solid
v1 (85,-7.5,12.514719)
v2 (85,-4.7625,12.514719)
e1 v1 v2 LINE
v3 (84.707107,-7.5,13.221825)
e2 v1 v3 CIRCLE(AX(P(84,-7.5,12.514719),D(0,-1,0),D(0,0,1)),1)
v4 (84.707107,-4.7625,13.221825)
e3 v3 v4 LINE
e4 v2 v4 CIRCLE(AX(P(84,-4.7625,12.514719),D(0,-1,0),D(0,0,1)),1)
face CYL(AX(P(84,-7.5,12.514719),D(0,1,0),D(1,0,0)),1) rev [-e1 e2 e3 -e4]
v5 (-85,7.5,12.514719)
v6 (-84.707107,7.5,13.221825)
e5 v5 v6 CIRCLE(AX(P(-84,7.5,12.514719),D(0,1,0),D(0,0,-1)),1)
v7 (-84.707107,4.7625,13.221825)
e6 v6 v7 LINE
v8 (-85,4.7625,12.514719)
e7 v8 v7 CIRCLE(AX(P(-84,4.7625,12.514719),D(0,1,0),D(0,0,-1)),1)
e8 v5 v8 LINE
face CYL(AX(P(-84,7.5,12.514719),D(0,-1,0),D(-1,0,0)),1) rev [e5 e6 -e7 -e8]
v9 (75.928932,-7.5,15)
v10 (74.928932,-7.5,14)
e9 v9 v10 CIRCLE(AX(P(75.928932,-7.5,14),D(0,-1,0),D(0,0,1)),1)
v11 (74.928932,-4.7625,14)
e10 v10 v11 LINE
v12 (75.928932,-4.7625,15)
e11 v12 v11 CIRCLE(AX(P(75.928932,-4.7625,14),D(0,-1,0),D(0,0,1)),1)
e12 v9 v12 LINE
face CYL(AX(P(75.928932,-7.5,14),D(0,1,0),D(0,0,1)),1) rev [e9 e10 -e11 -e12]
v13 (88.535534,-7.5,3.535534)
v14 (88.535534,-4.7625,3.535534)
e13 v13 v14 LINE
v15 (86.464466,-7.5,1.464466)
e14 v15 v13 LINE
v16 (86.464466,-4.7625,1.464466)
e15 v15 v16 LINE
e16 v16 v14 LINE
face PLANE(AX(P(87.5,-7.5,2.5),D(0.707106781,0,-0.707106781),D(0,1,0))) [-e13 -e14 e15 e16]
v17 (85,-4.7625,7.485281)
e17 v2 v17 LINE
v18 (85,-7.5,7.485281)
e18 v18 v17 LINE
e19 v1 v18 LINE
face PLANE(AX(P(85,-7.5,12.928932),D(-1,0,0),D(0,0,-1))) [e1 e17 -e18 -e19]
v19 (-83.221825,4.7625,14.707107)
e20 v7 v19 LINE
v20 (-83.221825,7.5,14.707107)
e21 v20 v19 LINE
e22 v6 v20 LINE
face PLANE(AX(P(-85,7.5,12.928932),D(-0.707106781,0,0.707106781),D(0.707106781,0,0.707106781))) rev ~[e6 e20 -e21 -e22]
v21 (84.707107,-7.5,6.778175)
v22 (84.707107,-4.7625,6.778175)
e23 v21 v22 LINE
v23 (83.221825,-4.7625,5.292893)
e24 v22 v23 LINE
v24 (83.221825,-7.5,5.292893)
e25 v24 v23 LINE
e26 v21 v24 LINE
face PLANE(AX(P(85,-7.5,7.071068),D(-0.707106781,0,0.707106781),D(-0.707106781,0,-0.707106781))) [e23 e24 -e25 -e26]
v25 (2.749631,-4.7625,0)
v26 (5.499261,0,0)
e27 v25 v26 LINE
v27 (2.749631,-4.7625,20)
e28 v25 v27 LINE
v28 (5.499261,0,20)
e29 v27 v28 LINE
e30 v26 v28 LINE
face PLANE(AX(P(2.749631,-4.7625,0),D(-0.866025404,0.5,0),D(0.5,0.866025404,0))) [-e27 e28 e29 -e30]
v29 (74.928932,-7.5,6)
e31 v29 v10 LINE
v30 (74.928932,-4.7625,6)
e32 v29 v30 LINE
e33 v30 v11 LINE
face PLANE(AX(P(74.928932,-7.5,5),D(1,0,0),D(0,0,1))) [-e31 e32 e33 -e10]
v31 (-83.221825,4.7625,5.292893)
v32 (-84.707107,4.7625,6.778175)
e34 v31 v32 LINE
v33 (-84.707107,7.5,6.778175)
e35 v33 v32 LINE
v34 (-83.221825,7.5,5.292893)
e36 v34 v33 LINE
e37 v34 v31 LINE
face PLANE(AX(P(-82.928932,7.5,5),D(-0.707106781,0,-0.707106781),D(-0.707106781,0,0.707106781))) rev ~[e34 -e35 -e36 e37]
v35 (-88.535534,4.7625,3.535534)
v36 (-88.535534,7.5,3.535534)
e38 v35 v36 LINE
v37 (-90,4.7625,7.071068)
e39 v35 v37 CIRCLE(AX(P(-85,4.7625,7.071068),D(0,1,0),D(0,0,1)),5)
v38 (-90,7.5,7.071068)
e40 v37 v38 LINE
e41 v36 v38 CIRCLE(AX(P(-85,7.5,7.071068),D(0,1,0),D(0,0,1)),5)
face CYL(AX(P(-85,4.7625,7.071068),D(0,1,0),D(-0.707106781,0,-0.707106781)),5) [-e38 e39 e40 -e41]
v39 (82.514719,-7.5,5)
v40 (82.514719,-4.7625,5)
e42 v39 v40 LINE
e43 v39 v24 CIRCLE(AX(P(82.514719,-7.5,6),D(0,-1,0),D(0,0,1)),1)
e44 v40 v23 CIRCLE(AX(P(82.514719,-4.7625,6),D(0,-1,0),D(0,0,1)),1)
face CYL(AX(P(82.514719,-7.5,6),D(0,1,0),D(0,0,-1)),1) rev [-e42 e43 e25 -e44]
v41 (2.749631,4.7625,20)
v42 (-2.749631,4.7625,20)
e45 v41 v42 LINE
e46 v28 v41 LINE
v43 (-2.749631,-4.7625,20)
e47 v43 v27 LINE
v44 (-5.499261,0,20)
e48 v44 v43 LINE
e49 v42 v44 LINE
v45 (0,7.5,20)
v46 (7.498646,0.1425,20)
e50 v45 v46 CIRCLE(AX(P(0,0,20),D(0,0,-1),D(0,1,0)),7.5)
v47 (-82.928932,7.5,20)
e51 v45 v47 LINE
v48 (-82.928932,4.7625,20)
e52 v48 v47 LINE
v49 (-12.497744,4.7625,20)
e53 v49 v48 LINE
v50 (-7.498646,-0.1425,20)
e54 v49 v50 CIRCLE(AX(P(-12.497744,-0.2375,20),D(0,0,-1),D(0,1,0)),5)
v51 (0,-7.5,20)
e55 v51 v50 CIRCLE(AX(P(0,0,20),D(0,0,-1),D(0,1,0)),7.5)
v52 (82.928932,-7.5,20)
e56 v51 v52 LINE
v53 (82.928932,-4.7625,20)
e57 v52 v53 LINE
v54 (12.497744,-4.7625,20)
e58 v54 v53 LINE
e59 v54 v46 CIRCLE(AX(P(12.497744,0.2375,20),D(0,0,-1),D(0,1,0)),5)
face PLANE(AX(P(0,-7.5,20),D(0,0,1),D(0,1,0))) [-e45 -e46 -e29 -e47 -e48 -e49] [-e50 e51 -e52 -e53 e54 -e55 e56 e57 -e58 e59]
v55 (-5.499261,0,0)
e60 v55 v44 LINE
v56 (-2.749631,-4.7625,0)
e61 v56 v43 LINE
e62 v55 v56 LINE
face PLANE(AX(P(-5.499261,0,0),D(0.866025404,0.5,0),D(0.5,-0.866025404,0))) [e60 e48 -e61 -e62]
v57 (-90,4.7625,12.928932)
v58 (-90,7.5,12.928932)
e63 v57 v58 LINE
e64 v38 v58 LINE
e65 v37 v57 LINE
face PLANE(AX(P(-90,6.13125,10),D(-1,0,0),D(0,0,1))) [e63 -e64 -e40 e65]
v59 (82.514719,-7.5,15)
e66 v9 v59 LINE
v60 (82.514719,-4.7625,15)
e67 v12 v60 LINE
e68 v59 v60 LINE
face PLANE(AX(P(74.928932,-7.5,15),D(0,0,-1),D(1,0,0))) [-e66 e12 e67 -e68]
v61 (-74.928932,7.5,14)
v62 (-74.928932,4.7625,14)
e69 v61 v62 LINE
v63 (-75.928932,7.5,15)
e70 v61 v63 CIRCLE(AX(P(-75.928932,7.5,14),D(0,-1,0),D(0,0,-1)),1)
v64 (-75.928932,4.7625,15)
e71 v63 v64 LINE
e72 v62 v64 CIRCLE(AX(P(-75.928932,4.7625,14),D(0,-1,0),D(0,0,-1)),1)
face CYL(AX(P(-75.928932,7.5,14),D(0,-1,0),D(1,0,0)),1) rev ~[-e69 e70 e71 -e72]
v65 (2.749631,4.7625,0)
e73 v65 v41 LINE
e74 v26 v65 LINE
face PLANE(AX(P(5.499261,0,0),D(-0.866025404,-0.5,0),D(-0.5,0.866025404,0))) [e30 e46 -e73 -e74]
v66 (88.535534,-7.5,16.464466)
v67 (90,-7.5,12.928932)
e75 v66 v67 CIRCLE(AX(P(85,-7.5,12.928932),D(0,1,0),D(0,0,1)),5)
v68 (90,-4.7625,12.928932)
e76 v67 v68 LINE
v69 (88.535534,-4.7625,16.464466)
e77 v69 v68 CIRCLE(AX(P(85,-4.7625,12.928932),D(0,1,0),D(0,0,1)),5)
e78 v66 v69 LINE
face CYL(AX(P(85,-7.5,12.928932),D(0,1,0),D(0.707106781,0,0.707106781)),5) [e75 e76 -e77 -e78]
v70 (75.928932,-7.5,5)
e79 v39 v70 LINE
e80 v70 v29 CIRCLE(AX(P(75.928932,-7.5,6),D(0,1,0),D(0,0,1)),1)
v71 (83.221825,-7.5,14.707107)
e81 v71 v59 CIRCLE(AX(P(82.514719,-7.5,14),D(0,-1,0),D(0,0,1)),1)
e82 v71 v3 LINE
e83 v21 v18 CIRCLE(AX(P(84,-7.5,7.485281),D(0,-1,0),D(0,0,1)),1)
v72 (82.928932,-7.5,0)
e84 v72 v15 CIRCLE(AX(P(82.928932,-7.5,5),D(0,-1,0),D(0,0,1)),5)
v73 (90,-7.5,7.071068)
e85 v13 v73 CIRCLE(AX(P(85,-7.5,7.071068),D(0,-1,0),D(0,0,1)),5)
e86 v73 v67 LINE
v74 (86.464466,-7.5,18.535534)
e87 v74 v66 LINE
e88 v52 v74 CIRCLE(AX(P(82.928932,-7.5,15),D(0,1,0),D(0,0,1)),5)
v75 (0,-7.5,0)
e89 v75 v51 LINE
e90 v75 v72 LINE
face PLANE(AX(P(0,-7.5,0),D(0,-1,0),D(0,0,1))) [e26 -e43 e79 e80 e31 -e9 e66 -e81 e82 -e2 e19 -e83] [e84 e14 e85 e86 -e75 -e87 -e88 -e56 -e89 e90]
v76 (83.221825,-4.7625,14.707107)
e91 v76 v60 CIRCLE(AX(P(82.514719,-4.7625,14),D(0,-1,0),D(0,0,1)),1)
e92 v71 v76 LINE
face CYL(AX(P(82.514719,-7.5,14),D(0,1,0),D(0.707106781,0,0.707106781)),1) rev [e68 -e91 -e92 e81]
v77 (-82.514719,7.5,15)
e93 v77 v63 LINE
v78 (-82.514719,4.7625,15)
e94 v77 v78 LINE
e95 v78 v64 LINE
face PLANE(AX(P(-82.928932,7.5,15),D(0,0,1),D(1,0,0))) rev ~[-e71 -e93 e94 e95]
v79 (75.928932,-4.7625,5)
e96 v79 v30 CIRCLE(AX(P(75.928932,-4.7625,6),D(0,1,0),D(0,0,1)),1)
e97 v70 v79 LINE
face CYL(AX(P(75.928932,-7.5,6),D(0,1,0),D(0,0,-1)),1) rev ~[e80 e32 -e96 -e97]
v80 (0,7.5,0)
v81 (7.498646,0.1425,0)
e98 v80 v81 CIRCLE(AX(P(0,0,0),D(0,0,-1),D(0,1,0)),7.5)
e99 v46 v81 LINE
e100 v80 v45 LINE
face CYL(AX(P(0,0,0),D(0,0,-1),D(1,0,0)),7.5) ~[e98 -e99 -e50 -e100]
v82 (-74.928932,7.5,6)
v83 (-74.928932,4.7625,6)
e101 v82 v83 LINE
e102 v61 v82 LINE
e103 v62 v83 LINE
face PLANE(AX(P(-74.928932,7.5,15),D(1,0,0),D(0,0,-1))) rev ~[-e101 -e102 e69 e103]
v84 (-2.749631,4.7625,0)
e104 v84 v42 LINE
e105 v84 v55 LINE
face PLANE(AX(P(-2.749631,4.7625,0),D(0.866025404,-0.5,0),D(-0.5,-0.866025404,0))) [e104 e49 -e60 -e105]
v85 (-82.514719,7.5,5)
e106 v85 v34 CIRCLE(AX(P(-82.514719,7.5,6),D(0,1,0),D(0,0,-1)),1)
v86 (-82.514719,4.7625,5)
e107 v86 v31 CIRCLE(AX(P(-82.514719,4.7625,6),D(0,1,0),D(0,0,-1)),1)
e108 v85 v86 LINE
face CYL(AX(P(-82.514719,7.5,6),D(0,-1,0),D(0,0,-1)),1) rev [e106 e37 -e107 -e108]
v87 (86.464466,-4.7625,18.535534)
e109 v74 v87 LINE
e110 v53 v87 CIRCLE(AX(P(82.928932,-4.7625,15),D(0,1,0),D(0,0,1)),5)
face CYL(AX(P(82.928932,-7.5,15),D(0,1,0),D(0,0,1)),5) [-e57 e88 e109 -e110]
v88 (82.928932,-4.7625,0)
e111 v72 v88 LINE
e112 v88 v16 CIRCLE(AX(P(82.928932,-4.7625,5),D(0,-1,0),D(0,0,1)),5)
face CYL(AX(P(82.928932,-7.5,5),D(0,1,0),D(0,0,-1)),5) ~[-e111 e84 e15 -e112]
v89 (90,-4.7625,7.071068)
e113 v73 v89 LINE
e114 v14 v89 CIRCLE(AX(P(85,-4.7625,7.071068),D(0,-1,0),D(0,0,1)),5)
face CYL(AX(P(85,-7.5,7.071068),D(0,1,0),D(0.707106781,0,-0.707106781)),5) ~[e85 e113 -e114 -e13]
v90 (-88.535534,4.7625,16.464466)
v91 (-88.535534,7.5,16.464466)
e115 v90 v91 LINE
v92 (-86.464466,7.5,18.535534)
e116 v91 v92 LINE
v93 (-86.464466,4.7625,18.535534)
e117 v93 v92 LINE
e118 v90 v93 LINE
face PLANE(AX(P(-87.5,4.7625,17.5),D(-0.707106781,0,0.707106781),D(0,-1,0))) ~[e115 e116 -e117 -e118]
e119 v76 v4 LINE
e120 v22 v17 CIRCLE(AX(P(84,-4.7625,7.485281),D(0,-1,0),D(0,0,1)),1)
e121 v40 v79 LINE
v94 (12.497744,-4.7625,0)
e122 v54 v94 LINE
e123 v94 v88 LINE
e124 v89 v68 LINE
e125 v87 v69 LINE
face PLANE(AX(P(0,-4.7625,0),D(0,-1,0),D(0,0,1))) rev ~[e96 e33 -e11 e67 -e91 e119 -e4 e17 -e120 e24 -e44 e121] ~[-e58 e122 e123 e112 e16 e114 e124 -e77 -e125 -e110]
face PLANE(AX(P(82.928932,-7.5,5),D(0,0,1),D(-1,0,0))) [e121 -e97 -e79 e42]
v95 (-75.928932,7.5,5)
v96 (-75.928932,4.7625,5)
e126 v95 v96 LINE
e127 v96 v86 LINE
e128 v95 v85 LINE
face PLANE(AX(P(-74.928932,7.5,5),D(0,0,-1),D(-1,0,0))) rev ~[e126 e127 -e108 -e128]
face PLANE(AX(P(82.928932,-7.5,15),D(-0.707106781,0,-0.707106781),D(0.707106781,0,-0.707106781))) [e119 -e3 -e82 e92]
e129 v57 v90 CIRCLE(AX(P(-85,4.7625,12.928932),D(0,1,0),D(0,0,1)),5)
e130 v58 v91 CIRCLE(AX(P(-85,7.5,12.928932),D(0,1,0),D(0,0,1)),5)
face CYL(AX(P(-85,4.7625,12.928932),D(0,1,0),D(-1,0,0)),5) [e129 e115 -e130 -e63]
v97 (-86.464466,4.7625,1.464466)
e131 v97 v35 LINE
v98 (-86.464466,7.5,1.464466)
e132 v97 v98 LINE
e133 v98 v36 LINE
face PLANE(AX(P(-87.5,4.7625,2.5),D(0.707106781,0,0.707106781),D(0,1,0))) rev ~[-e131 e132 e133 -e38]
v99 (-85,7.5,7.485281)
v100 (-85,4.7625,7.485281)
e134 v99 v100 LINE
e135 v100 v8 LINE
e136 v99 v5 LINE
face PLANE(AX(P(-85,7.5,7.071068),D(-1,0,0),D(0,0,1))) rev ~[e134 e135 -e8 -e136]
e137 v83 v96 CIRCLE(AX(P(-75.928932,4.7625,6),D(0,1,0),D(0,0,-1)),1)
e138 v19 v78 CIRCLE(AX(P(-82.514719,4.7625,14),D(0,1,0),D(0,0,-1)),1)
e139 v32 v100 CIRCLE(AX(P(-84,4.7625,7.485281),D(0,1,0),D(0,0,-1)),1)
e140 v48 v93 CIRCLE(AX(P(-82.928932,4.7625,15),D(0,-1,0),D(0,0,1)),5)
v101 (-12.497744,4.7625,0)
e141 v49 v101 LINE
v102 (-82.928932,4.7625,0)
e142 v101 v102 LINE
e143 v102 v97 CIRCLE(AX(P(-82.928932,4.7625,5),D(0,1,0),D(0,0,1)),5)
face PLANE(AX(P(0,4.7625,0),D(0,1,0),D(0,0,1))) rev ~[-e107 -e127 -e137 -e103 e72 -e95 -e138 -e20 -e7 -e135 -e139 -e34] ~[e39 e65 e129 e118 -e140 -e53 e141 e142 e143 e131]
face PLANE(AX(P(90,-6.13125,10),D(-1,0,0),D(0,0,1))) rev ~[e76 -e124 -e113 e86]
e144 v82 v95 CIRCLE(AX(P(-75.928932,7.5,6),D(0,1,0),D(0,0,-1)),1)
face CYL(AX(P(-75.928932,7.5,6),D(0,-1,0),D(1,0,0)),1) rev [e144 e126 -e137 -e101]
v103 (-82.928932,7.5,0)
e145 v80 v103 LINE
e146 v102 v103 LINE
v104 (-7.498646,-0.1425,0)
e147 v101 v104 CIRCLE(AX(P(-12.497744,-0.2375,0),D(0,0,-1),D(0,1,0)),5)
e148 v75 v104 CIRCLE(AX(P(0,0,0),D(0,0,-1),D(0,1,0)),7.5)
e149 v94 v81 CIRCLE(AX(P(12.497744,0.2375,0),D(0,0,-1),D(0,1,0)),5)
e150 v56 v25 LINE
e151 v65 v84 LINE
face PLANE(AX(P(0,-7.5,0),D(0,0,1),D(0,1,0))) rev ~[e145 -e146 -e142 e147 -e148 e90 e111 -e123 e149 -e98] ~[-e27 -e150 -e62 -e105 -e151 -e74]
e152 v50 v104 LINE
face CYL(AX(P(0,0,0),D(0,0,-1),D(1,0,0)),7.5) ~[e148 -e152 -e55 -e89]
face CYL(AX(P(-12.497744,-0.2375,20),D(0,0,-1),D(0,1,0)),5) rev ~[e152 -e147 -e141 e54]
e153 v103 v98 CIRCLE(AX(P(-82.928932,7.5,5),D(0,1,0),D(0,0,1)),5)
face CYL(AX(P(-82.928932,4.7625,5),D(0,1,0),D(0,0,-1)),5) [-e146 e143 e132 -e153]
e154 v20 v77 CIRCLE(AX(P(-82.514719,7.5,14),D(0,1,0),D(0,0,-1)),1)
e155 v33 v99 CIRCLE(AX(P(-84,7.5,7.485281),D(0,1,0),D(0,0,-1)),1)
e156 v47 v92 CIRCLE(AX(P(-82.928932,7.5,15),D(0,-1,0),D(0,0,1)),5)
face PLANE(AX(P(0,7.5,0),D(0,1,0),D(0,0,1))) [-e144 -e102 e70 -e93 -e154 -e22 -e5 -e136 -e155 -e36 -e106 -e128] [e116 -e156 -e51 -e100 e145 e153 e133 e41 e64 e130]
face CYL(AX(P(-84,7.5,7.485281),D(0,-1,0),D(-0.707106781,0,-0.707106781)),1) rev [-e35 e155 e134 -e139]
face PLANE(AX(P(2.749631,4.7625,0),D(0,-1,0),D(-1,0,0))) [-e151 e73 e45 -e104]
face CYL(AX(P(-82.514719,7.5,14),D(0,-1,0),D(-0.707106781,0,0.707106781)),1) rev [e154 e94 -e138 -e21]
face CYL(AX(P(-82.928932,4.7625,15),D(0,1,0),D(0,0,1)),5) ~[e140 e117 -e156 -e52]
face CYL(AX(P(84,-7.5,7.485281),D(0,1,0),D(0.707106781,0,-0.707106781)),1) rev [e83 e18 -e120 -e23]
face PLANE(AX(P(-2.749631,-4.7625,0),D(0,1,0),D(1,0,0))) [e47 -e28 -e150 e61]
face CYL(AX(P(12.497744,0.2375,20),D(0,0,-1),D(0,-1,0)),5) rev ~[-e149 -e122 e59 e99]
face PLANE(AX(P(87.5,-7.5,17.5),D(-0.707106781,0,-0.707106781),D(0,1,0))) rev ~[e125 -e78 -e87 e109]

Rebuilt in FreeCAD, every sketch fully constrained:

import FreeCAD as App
import Part
import Sketcher

V = App.Vector
Q = App.Units.Quantity


def edges_at(feature, points):
    """Names of the edges that pass closest to the given points."""
    edges = feature.Shape.Edges
    near = lambda p: min(range(len(edges)), key=lambda i: edges[i].distToShape(Part.Vertex(*p))[0])
    return sorted({f"Edge{near(p) + 1}" for p in points})


def add_polygon(sketch, points):
    """Adds a closed chain of lines whose ends are joined by coincident constraints."""
    first, n = sketch.GeometryCount, len(points)
    for a, b in zip(points, points[1:] + points[:1]):
        sketch.addGeometry(Part.LineSegment(App.Vector(*a, 0), App.Vector(*b, 0)), False)
    for i in range(n):
        sketch.addConstraint(Sketcher.Constraint("Coincident", first + i, 2, first + (i + 1) % n, 1))

doc = App.newDocument("Part")
body = doc.addObject("PartDesign::Body", "Body")

# Sketch on XY plane
sketch1 = doc.addObject("Sketcher::SketchObject", "Sketch")
body.addObject(sketch1)
sketch1.AttachmentSupport = (doc.XY_Plane, [""])
sketch1.MapMode = "FlatFace"
sketch1.addGeometry(Part.Circle(V(0, 0, 0), V(0, 0, 1), 7.5), False)  # 0
add_polygon(sketch1, [(2.749631, 4.7625), (5.499261, 0), (2.749631, -4.7625), (-2.749631, -4.7625), (-5.499261, 0), (-2.749631, 4.7625)])  # lines 1-6
sketch1.addConstraint([
    Sketcher.Constraint("Horizontal", 3),
    Sketcher.Constraint("Horizontal", 6),
    Sketcher.Constraint("Coincident", 0, 3, -1, 1),
    Sketcher.Constraint("Symmetric", 1, 2, 4, 2, -1, 1),
    Sketcher.Constraint("Symmetric", 2, 2, 5, 2, -1, 1),
    Sketcher.Constraint("PointOnObject", 1, 2, -1),
    Sketcher.Constraint("Parallel", 1, 4),
    Sketcher.Constraint("Vertical", 3, 2, 5, 2),
    Sketcher.Constraint("Diameter", 0, 15.0),
    Sketcher.Constraint("Angle", 1, Q("-60 deg")),
    Sketcher.Constraint("DistanceY", 3, 2, 5, 2, 9.525),
    Sketcher.Constraint("DistanceX", 3, 2, 3, 1, 5.499261),
])
pad1 = doc.addObject("PartDesign::Pad", "Pad")
body.addObject(pad1)
pad1.Profile = sketch1
pad1.Length = 20

# Sketch on YZ plane
sketch2 = doc.addObject("Sketcher::SketchObject", "Sketch001")
body.addObject(sketch2)
sketch2.AttachmentSupport = (doc.YZ_Plane, [""])
sketch2.MapMode = "FlatFace"
add_polygon(sketch2, [(7.5, 0), (4.7625, 0), (4.7625, 20), (7.5, 20)])  # lines 0-3
sketch2.addConstraint([
    Sketcher.Constraint("Horizontal", 0),
    Sketcher.Constraint("Vertical", 1),
    Sketcher.Constraint("Horizontal", 2),
    Sketcher.Constraint("Vertical", 3),
    Sketcher.Constraint("PointOnObject", 0, 2, -1),
    Sketcher.Constraint("DistanceY", 1, 1, 1, 2, 20.0),
    Sketcher.Constraint("DistanceX", -1, 1, 2, 2, 7.5),
    Sketcher.Constraint("DistanceX", 0, 2, 0, 1, 2.7375),
])
pad2 = doc.addObject("PartDesign::Pad", "Pad001")
body.addObject(pad2)
pad2.Profile = sketch2
pad2.Length = 90
pad2.Reversed = True
doc.recompute()

fillet = doc.addObject("PartDesign::Fillet", "Fillet")
body.addObject(fillet)
fillet.Base = (pad2, edges_at(pad2, [(-5.794, 4.763, 10)]))
fillet.Radius = 5
doc.recompute()

chamfer = doc.addObject("PartDesign::Chamfer", "Chamfer")
body.addObject(chamfer)
chamfer.Base = (fillet, edges_at(fillet, [(-90, 6.131, 0), (-90, 6.131, 20)]))
chamfer.Size = 5
doc.recompute()

fillet2 = doc.addObject("PartDesign::Fillet", "Fillet001")
body.addObject(fillet2)
fillet2.Base = (chamfer, edges_at(chamfer, [
    (-90, 6.131, 15),
    (-90, 6.131, 5),
    (-85, 6.131, 0),
    (-85, 6.131, 20),
]))
fillet2.Radius = 5

# Sketch on XZ plane
sketch3 = doc.addObject("Sketcher::SketchObject", "Sketch002")
body.addObject(sketch3)
sketch3.AttachmentSupport = (doc.XZ_Plane, [""])
sketch3.MapMode = "FlatFace"
sketch3.AttachmentOffset = App.Placement(V(0, 0, -7.5), App.Rotation())
add_polygon(sketch3, [(-74.928932, 15), (-74.928932, 5), (-82.928932, 5), (-85, 7.071068), (-85, 12.928932), (-82.928932, 15)])  # lines 0-5
sketch3.addConstraint([
    Sketcher.Constraint("Vertical", 0),
    Sketcher.Constraint("Horizontal", 1),
    Sketcher.Constraint("Vertical", 3),
    Sketcher.Constraint("Horizontal", 5),
    Sketcher.Constraint("Perpendicular", 2, 4),
    Sketcher.Constraint("Vertical", 1, 2, 4, 2),
    Sketcher.Constraint("Equal", 2, 4),
    Sketcher.Constraint("DistanceX", 1, 2, 1, 1, 8.0),
    Sketcher.Constraint("DistanceY", 0, 2, 0, 1, 10.0),
    Sketcher.Constraint("DistanceY", -1, 1, 0, 2, 5.0),
    Sketcher.Constraint("DistanceX", 2, 2, -1, 1, 85.0),
    Sketcher.Constraint("DistanceY", 3, 1, 3, 2, 5.857864),
])
pocket1 = doc.addObject("PartDesign::Pocket", "Pocket")
body.addObject(pocket1)
pocket1.Profile = sketch3
pocket1.Length = 45
pocket1.Reversed = True
doc.recompute()

fillet3 = doc.addObject("PartDesign::Fillet", "Fillet002")
body.addObject(fillet3)
fillet3.Base = (pocket1, edges_at(pocket1, [
    (-74.929, 6.131, 15),
    (-82.929, 6.131, 15),
    (-85, 6.131, 12.929),
    (-85, 6.131, 7.071),
    (-82.929, 6.131, 5),
    (-74.929, 6.131, 5),
]))
fillet3.Radius = 1

# Sketch on YZ plane
sketch4 = doc.addObject("Sketcher::SketchObject", "Sketch003")
body.addObject(sketch4)
sketch4.AttachmentSupport = (doc.YZ_Plane, [""])
sketch4.MapMode = "FlatFace"
add_polygon(sketch4, [(-4.7625, 0), (-7.5, 0), (-7.5, 20), (-4.7625, 20)])  # lines 0-3
sketch4.addConstraint([
    Sketcher.Constraint("Horizontal", 0),
    Sketcher.Constraint("Vertical", 1),
    Sketcher.Constraint("Horizontal", 2),
    Sketcher.Constraint("Vertical", 3),
    Sketcher.Constraint("PointOnObject", 0, 2, -1),
    Sketcher.Constraint("DistanceY", 1, 1, 1, 2, 20.0),
    Sketcher.Constraint("DistanceX", 0, 2, -1, 1, 7.5),
    Sketcher.Constraint("DistanceX", 0, 2, 0, 1, 2.7375),
])
pad3 = doc.addObject("PartDesign::Pad", "Pad002")
body.addObject(pad3)
pad3.Profile = sketch4
pad3.Length = 90
doc.recompute()

chamfer2 = doc.addObject("PartDesign::Chamfer", "Chamfer001")
body.addObject(chamfer2)
chamfer2.Base = (pad3, edges_at(pad3, [(90, -6.131, 20), (90, -6.131, 0)]))
chamfer2.Size = 5
doc.recompute()

fillet4 = doc.addObject("PartDesign::Fillet", "Fillet003")
body.addObject(fillet4)
fillet4.Base = (chamfer2, edges_at(chamfer2, [
    (85, -6.131, 20),
    (90, -6.131, 5),
    (90, -6.131, 15),
    (85, -6.131, 0),
]))
fillet4.Radius = 5
doc.recompute()

fillet5 = doc.addObject("PartDesign::Fillet", "Fillet004")
body.addObject(fillet5)
fillet5.Base = (fillet4, edges_at(fillet4, [(5.794, -4.763, 10)]))
fillet5.Radius = 5

# Sketch on XZ plane
sketch5 = doc.addObject("Sketcher::SketchObject", "Sketch004")
body.addObject(sketch5)
sketch5.AttachmentSupport = (doc.XZ_Plane, [""])
sketch5.MapMode = "FlatFace"
sketch5.AttachmentOffset = App.Placement(V(0, 0, 7.5), App.Rotation())
add_polygon(sketch5, [(74.928932, 15), (74.928932, 5), (82.928932, 5), (85, 7.071068), (85, 12.928932), (82.928932, 15)])  # lines 0-5
sketch5.addConstraint([
    Sketcher.Constraint("Vertical", 0),
    Sketcher.Constraint("Horizontal", 1),
    Sketcher.Constraint("Vertical", 3),
    Sketcher.Constraint("Horizontal", 5),
    Sketcher.Constraint("Perpendicular", 2, 4),
    Sketcher.Constraint("Vertical", 1, 2, 4, 2),
    Sketcher.Constraint("Equal", 2, 4),
    Sketcher.Constraint("DistanceX", 1, 1, 1, 2, 8.0),
    Sketcher.Constraint("DistanceY", 0, 2, 0, 1, 10.0),
    Sketcher.Constraint("DistanceY", -1, 1, 0, 2, 5.0),
    Sketcher.Constraint("DistanceX", -1, 1, 2, 2, 85.0),
    Sketcher.Constraint("DistanceY", 3, 1, 3, 2, 5.857864),
])
pocket2 = doc.addObject("PartDesign::Pocket", "Pocket001")
body.addObject(pocket2)
pocket2.Profile = sketch5
pocket2.Length = 90
doc.recompute()

fillet6 = doc.addObject("PartDesign::Fillet", "Fillet005")
body.addObject(fillet6)
fillet6.Base = (pocket2, edges_at(pocket2, [
    (82.929, -6.131, 5),
    (74.929, -6.131, 5),
    (74.929, -6.131, 15),
    (82.929, -6.131, 15),
    (85, -6.131, 12.929),
    (85, -6.131, 7.071),
]))
fillet6.Radius = 1

doc.recompute()
